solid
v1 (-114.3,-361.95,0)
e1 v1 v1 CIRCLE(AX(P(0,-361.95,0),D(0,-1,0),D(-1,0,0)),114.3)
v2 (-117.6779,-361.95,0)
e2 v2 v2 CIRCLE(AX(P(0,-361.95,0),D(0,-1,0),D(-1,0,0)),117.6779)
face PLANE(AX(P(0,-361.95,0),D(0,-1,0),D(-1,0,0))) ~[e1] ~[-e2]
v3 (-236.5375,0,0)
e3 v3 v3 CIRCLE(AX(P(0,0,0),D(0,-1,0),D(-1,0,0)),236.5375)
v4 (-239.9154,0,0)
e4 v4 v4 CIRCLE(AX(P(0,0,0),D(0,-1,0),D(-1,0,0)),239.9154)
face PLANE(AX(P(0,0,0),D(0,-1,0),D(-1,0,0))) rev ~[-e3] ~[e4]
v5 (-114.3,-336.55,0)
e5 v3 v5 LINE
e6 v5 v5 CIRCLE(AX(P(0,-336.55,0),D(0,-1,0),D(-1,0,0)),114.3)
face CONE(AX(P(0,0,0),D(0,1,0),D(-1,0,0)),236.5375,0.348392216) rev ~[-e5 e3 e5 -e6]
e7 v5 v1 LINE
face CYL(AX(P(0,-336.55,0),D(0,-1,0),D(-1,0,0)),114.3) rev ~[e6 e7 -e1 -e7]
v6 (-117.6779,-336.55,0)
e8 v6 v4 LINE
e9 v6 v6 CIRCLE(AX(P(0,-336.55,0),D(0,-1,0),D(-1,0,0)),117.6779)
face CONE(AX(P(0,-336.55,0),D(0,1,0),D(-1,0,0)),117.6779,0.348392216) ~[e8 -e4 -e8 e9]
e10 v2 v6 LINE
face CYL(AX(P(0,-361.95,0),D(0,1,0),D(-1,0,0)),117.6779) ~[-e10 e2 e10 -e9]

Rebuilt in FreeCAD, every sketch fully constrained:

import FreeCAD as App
import Part
import Sketcher

V = App.Vector
Q = App.Units.Quantity

doc = App.newDocument("Part")
body = doc.addObject("PartDesign::Body", "Body")

# Sketch on XY plane
sketch1 = body.newObject("Sketcher::SketchObject", "Sketch")
sketch1.AttachmentSupport = (doc.getObject("XY_Plane"), [""])
sketch1.MapMode = "FlatFace"
sketch1.addGeometry([
    Part.LineSegment(V(-236.5, 0, 0), V(-239.9, 0, 0)),  # 0
    Part.LineSegment(V(-239.9, 0, 0), V(-117.7, -336.6, 0)),  # 1
    Part.LineSegment(V(-117.7, -336.6, 0), V(-117.7, -361.9, 0)),  # 2
    Part.LineSegment(V(-117.7, -361.9, 0), V(-114.3, -361.9, 0)),  # 3
    Part.LineSegment(V(-114.3, -361.9, 0), V(-114.3, -336.6, 0)),  # 4
    Part.LineSegment(V(-114.3, -336.6, 0), V(-236.5, 0, 0)),  # 5
], False)
sketch1.addConstraint([
    Sketcher.Constraint("Coincident", 0, 2, 1, 1),
    Sketcher.Constraint("Coincident", 1, 2, 2, 1),
    Sketcher.Constraint("Coincident", 2, 2, 3, 1),
    Sketcher.Constraint("Coincident", 3, 2, 4, 1),
    Sketcher.Constraint("Coincident", 4, 2, 5, 1),
    Sketcher.Constraint("Coincident", 5, 2, 0, 1),
    Sketcher.Constraint("Horizontal", 0),
    Sketcher.Constraint("Vertical", 2),
    Sketcher.Constraint("Horizontal", 3),
    Sketcher.Constraint("Vertical", 4),
    Sketcher.Constraint("PointOnObject", 0, 2, -1),
    Sketcher.Constraint("Parallel", 1, 5),
    Sketcher.Constraint("Horizontal", 1, 2, 4, 2),
    Sketcher.Constraint("DistanceY", 2, 2, 2, 1, Q("1 in")),
    Sketcher.Constraint("DistanceX", 3, 2, -1, 1, Q("4.5 in")),
    Sketcher.Constraint("DistanceY", 2, 2, -1, 1, Q("14.25 in")),
    Sketcher.Constraint("DistanceX", 5, 2, -1, 1, Q("9.3125 in")),
    Sketcher.Constraint("DistanceX", 0, 2, 0, 1, Q("0.133 in")),
])
revolution = body.newObject("PartDesign::Revolution", "Revolution")
revolution.Profile = sketch1
revolution.ReferenceAxis = (sketch1, ["V_Axis"])
revolution.Angle = 360

doc.recompute()
